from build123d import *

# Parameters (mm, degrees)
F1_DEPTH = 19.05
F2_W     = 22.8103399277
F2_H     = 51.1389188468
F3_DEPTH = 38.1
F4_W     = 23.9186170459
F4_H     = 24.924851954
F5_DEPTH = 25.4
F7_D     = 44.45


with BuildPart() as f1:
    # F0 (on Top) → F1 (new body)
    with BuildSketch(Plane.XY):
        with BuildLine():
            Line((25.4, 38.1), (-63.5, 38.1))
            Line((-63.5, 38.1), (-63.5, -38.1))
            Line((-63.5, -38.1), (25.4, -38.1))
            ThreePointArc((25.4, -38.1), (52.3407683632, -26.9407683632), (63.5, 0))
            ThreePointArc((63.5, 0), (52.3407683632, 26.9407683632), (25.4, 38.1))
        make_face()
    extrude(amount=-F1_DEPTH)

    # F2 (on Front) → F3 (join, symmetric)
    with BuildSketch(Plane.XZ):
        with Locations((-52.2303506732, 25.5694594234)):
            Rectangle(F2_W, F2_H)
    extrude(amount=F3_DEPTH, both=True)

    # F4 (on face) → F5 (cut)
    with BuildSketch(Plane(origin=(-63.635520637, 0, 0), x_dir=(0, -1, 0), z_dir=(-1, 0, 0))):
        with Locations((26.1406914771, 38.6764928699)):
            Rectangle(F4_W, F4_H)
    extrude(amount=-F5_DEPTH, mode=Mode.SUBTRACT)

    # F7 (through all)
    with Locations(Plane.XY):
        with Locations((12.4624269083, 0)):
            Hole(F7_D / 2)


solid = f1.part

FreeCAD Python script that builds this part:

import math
import FreeCAD as App
import Part
import Sketcher
Q = App.Units.Quantity


def add_polygon(sketch, points):
    """Adds a closed chain of lines whose ends are joined by coincident constraints."""
    first, n = sketch.GeometryCount, len(points)
    for a, b in zip(points, points[1:] + points[:1]):
        sketch.addGeometry(Part.LineSegment(App.Vector(*a, 0), App.Vector(*b, 0)), False)
    for i in range(n):
        sketch.addConstraint(Sketcher.Constraint("Coincident", first + i, 2, first + (i + 1) % n, 1))

doc = App.newDocument("Part")
body = doc.addObject("PartDesign::Body", "Body")

# Sketch on XY plane
sketch1 = body.newObject("Sketcher::SketchObject", "Sketch")
sketch1.AttachmentSupport = (doc.getObject("XY_Plane"), [""])
sketch1.MapMode = "FlatFace"
sketch1.addGeometry([
    Part.LineSegment(App.Vector(25.4, 38.1, 0), App.Vector(-63.5, 38.1, 0)),  # 0
    Part.LineSegment(App.Vector(-63.5, 38.1, 0), App.Vector(-63.5, -38.1, 0)),  # 1
    Part.LineSegment(App.Vector(-63.5, -38.1, 0), App.Vector(25.4, -38.1, 0)),  # 2
    Part.ArcOfCircle(Part.Circle(App.Vector(25.4, 0, 0), App.Vector(0, 0, 1), 38.1), math.radians(-90), math.radians(0)),  # 3
    Part.ArcOfCircle(Part.Circle(App.Vector(25.4, 0, 0), App.Vector(0, 0, 1), 38.1), math.radians(0), math.radians(90)),  # 4
], False)
sketch1.addConstraint([
    Sketcher.Constraint("Coincident", 0, 2, 1, 1),
    Sketcher.Constraint("Coincident", 1, 2, 2, 1),
    Sketcher.Constraint("Tangent", 2, 2, 3, 1),
    Sketcher.Constraint("Tangent", 3, 2, 4, 1),
    Sketcher.Constraint("Tangent", 4, 2, 0, 1),
    Sketcher.Constraint("Horizontal", 0),
    Sketcher.Constraint("Vertical", 1),
    Sketcher.Constraint("Horizontal", 2),
    Sketcher.Constraint("Equal", 3, 4),
    Sketcher.Constraint("PointOnObject", 3, 3, -1),
    Sketcher.Constraint("PointOnObject", 3, 2, -1),
    Sketcher.Constraint("Radius", 3, Q("1.5 in")),
    Sketcher.Constraint("DistanceX", 0, 2, 0, 1, Q("3.5 in")),
    Sketcher.Constraint("DistanceX", -1, 1, 3, 3, Q("1 in")),
])
pad1 = body.newObject("PartDesign::Pad", "Pad")
pad1.Profile = sketch1
pad1.Length = Q("0.75 in")
pad1.Reversed = True

# Sketch on XZ plane
sketch2 = body.newObject("Sketcher::SketchObject", "Sketch001")
sketch2.AttachmentSupport = (doc.getObject("XZ_Plane"), [""])
sketch2.MapMode = "FlatFace"
add_polygon(sketch2, [(-63.635521, 51.138919), (-63.635521, 0), (-40.825181, 0), (-40.825181, 51.138919)])  # lines 0-3
sketch2.addConstraint([
    Sketcher.Constraint("Vertical", 0),
    Sketcher.Constraint("Horizontal", 1),
    Sketcher.Constraint("Vertical", 2),
    Sketcher.Constraint("Horizontal", 3),
    Sketcher.Constraint("PointOnObject", 0, 2, -1),
    Sketcher.Constraint("DistanceX", 1, 1, 1, 2, 22.81034),
    Sketcher.Constraint("DistanceY", 0, 2, 0, 1, 51.138919),
    Sketcher.Constraint("DistanceX", 0, 2, -1, 1, 63.635521),
])
pad2 = body.newObject("PartDesign::Pad", "Pad001")
pad2.Profile = sketch2
pad2.Length = Q("3 in")
pad2.Midplane = True

# Sketch on YZ plane
sketch3 = body.newObject("Sketcher::SketchObject", "Sketch002")
sketch3.AttachmentSupport = (doc.getObject("YZ_Plane"), [""])
sketch3.MapMode = "FlatFace"
sketch3.AttachmentOffset = App.Placement(App.Vector(0, 0, -63.635521), App.Rotation())
add_polygon(sketch3, [(-14.181383, 51.138919), (-14.181383, 26.214067), (-38.1, 26.214067), (-38.1, 51.138919)])  # lines 0-3
sketch3.addConstraint([
    Sketcher.Constraint("Vertical", 0),
    Sketcher.Constraint("Horizontal", 1),
    Sketcher.Constraint("Vertical", 2),
    Sketcher.Constraint("Horizontal", 3),
    Sketcher.Constraint("DistanceX", 1, 2, -1, 1, Q("1.5 in")),
    Sketcher.Constraint("DistanceY", 0, 2, 0, 1, 24.924852),
    Sketcher.Constraint("DistanceX", 1, 2, 1, 1, 23.918617),
    Sketcher.Constraint("DistanceY", -1, 1, 2, 2, 51.138919),
])
pocket1 = body.newObject("PartDesign::Pocket", "Pocket")
pocket1.Profile = sketch3
pocket1.Length = Q("1 in")
pocket1.Reversed = True

# Sketch on XY plane
sketch4 = body.newObject("Sketcher::SketchObject", "Sketch003")
sketch4.AttachmentSupport = (doc.getObject("XY_Plane"), [""])
sketch4.MapMode = "FlatFace"
sketch4.addGeometry(Part.Circle(App.Vector(12.462427, 0, 0), App.Vector(0, 0, 1), 22.225), False)
sketch4.addConstraint([
    Sketcher.Constraint("PointOnObject", 0, 3, -1),
    Sketcher.Constraint("Diameter", 0, Q("1.75 in")),
    Sketcher.Constraint("DistanceX", -1, 1, 0, 3, 12.462427),
])
doc.recompute()
hole = body.newObject("PartDesign::Hole", "Hole")
hole.Profile = sketch4
hole.ThreadType = "None"
hole.Diameter = Q("1.75 in")
hole.DepthType = "ThroughAll"

doc.recompute()
